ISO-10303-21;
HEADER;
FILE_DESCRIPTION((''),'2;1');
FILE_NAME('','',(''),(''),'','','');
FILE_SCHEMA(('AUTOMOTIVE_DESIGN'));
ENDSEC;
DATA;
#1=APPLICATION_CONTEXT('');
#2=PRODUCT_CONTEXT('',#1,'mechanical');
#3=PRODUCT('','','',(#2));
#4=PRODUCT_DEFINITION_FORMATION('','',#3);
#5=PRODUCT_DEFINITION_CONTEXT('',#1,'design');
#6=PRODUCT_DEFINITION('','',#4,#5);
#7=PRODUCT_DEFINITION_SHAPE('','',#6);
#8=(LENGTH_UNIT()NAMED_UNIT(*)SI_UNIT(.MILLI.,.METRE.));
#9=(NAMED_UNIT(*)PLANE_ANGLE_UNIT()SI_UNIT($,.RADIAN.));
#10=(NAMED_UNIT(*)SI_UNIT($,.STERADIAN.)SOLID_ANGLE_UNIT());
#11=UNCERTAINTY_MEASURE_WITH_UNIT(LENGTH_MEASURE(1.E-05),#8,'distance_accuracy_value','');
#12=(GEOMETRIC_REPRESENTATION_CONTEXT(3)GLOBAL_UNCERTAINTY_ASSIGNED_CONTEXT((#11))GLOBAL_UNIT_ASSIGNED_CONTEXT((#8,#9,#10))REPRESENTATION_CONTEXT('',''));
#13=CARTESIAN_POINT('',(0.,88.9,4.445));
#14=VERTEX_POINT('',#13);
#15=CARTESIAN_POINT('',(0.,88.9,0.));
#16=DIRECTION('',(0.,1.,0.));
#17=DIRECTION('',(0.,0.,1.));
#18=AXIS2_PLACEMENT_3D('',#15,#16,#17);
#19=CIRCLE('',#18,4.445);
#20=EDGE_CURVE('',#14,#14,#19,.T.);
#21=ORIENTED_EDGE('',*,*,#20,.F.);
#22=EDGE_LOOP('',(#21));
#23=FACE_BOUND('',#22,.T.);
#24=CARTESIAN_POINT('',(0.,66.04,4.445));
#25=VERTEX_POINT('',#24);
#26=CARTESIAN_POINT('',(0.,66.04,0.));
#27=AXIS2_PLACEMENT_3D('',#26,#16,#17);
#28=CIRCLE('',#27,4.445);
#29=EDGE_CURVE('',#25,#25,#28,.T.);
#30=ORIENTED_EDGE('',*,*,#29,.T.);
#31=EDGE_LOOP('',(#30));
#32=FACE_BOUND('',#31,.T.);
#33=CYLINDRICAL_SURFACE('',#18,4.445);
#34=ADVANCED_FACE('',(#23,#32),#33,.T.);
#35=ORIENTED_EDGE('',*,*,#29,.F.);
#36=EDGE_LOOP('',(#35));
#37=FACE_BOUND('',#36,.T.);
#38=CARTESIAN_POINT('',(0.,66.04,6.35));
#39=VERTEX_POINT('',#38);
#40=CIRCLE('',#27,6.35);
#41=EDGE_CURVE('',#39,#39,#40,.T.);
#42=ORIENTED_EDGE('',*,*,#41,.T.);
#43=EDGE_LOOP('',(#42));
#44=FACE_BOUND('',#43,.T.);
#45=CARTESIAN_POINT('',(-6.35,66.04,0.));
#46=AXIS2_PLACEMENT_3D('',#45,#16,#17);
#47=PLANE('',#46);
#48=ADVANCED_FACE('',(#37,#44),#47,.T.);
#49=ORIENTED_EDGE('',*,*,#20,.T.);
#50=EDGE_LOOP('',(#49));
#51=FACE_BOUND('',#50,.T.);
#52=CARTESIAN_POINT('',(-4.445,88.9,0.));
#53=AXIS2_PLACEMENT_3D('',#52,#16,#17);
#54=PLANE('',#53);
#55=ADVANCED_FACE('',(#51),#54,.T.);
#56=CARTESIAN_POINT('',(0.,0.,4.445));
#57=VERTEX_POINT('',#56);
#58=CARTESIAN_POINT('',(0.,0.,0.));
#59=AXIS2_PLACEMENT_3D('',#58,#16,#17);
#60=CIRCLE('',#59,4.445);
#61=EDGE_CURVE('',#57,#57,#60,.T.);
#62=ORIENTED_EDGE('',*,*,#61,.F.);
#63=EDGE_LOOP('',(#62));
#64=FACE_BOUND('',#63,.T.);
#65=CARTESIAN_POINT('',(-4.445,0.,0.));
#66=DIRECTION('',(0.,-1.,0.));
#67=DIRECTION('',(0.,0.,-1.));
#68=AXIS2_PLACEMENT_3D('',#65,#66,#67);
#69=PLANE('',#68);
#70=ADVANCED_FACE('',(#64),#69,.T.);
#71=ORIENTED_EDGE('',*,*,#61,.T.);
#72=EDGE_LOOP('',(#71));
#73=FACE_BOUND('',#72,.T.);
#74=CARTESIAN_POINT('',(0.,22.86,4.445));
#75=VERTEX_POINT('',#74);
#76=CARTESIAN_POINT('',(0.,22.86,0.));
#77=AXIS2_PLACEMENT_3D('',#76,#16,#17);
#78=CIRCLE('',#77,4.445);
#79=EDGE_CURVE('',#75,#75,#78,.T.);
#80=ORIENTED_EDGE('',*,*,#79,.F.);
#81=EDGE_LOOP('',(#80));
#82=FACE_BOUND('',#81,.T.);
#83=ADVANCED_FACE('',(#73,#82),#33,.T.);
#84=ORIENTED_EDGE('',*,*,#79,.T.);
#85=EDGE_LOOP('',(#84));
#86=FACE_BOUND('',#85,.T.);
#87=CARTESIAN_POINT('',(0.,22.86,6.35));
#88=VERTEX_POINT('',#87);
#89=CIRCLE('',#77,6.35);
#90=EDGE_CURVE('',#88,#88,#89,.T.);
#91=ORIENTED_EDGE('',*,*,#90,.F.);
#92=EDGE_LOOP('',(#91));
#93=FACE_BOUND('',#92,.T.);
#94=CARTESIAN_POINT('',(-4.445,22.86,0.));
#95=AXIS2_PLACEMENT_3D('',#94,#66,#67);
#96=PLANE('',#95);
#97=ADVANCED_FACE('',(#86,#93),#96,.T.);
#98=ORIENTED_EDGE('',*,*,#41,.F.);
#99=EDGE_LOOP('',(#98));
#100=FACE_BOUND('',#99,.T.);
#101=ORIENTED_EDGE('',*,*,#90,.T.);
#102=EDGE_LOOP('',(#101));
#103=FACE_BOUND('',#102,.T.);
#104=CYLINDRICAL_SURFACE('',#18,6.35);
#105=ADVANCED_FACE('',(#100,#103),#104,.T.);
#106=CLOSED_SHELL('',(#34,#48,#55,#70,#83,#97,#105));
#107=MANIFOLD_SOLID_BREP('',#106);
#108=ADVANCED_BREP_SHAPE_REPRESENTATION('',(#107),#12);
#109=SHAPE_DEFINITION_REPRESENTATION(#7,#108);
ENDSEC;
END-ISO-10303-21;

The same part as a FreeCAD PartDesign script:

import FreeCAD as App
import Part
import Sketcher

V = App.Vector
Q = App.Units.Quantity


def add_polygon(sketch, points):
    """Adds a closed chain of lines whose ends are joined by coincident constraints."""
    first, n = sketch.GeometryCount, len(points)
    for a, b in zip(points, points[1:] + points[:1]):
        sketch.addGeometry(Part.LineSegment(App.Vector(*a, 0), App.Vector(*b, 0)), False)
    for i in range(n):
        sketch.addConstraint(Sketcher.Constraint("Coincident", first + i, 2, first + (i + 1) % n, 1))

doc = App.newDocument("Part")
body = doc.addObject("PartDesign::Body", "Body")

sketch1 = body.newObject("Sketcher::SketchObject", "Sketch")
sketch1.AttachmentSupport = (doc.getObject("XY_Plane"), [""])
sketch1.MapMode = "FlatFace"
add_polygon(sketch1, [(-4.4, 22.9), (-4.4, 0), (0, 0), (0, 88.9), (-4.4, 88.9), (-4.4, 66), (-6.3, 66), (-6.3, 22.9)])
sketch1.addConstraint(Sketcher.Constraint("Vertical", 0))
sketch1.addConstraint(Sketcher.Constraint("Horizontal", 1))
sketch1.addConstraint(Sketcher.Constraint("Vertical", 2))
sketch1.addConstraint(Sketcher.Constraint("Horizontal", 3))
sketch1.addConstraint(Sketcher.Constraint("Vertical", 4))
sketch1.addConstraint(Sketcher.Constraint("Horizontal", 5))
sketch1.addConstraint(Sketcher.Constraint("Vertical", 6))
sketch1.addConstraint(Sketcher.Constraint("Horizontal", 7))
sketch1.addConstraint(Sketcher.Constraint("Coincident", 1, 2, -1, 1))
sketch1.addConstraint(Sketcher.Constraint("Vertical", 0, 2, 3, 2))
sketch1.addConstraint(Sketcher.Constraint("Equal", 0, 4))
sketch1.addConstraint(Sketcher.Constraint("DistanceY", 0, 2, 0, 1, Q("0.9 in")))
sketch1.addConstraint(Sketcher.Constraint("DistanceY", 2, 1, 2, 2, Q("3.5 in")))
sketch1.addConstraint(Sketcher.Constraint("DistanceX", 1, 1, 1, 2, Q("0.175 in")))
sketch1.addConstraint(Sketcher.Constraint("DistanceX", 5, 2, 5, 1, Q("0.075 in")))
revolution = body.newObject("PartDesign::Revolution", "Revolution")
revolution.Profile = sketch1
revolution.ReferenceAxis = (sketch1, ["V_Axis"])
revolution.Angle = 360

doc.recompute()
